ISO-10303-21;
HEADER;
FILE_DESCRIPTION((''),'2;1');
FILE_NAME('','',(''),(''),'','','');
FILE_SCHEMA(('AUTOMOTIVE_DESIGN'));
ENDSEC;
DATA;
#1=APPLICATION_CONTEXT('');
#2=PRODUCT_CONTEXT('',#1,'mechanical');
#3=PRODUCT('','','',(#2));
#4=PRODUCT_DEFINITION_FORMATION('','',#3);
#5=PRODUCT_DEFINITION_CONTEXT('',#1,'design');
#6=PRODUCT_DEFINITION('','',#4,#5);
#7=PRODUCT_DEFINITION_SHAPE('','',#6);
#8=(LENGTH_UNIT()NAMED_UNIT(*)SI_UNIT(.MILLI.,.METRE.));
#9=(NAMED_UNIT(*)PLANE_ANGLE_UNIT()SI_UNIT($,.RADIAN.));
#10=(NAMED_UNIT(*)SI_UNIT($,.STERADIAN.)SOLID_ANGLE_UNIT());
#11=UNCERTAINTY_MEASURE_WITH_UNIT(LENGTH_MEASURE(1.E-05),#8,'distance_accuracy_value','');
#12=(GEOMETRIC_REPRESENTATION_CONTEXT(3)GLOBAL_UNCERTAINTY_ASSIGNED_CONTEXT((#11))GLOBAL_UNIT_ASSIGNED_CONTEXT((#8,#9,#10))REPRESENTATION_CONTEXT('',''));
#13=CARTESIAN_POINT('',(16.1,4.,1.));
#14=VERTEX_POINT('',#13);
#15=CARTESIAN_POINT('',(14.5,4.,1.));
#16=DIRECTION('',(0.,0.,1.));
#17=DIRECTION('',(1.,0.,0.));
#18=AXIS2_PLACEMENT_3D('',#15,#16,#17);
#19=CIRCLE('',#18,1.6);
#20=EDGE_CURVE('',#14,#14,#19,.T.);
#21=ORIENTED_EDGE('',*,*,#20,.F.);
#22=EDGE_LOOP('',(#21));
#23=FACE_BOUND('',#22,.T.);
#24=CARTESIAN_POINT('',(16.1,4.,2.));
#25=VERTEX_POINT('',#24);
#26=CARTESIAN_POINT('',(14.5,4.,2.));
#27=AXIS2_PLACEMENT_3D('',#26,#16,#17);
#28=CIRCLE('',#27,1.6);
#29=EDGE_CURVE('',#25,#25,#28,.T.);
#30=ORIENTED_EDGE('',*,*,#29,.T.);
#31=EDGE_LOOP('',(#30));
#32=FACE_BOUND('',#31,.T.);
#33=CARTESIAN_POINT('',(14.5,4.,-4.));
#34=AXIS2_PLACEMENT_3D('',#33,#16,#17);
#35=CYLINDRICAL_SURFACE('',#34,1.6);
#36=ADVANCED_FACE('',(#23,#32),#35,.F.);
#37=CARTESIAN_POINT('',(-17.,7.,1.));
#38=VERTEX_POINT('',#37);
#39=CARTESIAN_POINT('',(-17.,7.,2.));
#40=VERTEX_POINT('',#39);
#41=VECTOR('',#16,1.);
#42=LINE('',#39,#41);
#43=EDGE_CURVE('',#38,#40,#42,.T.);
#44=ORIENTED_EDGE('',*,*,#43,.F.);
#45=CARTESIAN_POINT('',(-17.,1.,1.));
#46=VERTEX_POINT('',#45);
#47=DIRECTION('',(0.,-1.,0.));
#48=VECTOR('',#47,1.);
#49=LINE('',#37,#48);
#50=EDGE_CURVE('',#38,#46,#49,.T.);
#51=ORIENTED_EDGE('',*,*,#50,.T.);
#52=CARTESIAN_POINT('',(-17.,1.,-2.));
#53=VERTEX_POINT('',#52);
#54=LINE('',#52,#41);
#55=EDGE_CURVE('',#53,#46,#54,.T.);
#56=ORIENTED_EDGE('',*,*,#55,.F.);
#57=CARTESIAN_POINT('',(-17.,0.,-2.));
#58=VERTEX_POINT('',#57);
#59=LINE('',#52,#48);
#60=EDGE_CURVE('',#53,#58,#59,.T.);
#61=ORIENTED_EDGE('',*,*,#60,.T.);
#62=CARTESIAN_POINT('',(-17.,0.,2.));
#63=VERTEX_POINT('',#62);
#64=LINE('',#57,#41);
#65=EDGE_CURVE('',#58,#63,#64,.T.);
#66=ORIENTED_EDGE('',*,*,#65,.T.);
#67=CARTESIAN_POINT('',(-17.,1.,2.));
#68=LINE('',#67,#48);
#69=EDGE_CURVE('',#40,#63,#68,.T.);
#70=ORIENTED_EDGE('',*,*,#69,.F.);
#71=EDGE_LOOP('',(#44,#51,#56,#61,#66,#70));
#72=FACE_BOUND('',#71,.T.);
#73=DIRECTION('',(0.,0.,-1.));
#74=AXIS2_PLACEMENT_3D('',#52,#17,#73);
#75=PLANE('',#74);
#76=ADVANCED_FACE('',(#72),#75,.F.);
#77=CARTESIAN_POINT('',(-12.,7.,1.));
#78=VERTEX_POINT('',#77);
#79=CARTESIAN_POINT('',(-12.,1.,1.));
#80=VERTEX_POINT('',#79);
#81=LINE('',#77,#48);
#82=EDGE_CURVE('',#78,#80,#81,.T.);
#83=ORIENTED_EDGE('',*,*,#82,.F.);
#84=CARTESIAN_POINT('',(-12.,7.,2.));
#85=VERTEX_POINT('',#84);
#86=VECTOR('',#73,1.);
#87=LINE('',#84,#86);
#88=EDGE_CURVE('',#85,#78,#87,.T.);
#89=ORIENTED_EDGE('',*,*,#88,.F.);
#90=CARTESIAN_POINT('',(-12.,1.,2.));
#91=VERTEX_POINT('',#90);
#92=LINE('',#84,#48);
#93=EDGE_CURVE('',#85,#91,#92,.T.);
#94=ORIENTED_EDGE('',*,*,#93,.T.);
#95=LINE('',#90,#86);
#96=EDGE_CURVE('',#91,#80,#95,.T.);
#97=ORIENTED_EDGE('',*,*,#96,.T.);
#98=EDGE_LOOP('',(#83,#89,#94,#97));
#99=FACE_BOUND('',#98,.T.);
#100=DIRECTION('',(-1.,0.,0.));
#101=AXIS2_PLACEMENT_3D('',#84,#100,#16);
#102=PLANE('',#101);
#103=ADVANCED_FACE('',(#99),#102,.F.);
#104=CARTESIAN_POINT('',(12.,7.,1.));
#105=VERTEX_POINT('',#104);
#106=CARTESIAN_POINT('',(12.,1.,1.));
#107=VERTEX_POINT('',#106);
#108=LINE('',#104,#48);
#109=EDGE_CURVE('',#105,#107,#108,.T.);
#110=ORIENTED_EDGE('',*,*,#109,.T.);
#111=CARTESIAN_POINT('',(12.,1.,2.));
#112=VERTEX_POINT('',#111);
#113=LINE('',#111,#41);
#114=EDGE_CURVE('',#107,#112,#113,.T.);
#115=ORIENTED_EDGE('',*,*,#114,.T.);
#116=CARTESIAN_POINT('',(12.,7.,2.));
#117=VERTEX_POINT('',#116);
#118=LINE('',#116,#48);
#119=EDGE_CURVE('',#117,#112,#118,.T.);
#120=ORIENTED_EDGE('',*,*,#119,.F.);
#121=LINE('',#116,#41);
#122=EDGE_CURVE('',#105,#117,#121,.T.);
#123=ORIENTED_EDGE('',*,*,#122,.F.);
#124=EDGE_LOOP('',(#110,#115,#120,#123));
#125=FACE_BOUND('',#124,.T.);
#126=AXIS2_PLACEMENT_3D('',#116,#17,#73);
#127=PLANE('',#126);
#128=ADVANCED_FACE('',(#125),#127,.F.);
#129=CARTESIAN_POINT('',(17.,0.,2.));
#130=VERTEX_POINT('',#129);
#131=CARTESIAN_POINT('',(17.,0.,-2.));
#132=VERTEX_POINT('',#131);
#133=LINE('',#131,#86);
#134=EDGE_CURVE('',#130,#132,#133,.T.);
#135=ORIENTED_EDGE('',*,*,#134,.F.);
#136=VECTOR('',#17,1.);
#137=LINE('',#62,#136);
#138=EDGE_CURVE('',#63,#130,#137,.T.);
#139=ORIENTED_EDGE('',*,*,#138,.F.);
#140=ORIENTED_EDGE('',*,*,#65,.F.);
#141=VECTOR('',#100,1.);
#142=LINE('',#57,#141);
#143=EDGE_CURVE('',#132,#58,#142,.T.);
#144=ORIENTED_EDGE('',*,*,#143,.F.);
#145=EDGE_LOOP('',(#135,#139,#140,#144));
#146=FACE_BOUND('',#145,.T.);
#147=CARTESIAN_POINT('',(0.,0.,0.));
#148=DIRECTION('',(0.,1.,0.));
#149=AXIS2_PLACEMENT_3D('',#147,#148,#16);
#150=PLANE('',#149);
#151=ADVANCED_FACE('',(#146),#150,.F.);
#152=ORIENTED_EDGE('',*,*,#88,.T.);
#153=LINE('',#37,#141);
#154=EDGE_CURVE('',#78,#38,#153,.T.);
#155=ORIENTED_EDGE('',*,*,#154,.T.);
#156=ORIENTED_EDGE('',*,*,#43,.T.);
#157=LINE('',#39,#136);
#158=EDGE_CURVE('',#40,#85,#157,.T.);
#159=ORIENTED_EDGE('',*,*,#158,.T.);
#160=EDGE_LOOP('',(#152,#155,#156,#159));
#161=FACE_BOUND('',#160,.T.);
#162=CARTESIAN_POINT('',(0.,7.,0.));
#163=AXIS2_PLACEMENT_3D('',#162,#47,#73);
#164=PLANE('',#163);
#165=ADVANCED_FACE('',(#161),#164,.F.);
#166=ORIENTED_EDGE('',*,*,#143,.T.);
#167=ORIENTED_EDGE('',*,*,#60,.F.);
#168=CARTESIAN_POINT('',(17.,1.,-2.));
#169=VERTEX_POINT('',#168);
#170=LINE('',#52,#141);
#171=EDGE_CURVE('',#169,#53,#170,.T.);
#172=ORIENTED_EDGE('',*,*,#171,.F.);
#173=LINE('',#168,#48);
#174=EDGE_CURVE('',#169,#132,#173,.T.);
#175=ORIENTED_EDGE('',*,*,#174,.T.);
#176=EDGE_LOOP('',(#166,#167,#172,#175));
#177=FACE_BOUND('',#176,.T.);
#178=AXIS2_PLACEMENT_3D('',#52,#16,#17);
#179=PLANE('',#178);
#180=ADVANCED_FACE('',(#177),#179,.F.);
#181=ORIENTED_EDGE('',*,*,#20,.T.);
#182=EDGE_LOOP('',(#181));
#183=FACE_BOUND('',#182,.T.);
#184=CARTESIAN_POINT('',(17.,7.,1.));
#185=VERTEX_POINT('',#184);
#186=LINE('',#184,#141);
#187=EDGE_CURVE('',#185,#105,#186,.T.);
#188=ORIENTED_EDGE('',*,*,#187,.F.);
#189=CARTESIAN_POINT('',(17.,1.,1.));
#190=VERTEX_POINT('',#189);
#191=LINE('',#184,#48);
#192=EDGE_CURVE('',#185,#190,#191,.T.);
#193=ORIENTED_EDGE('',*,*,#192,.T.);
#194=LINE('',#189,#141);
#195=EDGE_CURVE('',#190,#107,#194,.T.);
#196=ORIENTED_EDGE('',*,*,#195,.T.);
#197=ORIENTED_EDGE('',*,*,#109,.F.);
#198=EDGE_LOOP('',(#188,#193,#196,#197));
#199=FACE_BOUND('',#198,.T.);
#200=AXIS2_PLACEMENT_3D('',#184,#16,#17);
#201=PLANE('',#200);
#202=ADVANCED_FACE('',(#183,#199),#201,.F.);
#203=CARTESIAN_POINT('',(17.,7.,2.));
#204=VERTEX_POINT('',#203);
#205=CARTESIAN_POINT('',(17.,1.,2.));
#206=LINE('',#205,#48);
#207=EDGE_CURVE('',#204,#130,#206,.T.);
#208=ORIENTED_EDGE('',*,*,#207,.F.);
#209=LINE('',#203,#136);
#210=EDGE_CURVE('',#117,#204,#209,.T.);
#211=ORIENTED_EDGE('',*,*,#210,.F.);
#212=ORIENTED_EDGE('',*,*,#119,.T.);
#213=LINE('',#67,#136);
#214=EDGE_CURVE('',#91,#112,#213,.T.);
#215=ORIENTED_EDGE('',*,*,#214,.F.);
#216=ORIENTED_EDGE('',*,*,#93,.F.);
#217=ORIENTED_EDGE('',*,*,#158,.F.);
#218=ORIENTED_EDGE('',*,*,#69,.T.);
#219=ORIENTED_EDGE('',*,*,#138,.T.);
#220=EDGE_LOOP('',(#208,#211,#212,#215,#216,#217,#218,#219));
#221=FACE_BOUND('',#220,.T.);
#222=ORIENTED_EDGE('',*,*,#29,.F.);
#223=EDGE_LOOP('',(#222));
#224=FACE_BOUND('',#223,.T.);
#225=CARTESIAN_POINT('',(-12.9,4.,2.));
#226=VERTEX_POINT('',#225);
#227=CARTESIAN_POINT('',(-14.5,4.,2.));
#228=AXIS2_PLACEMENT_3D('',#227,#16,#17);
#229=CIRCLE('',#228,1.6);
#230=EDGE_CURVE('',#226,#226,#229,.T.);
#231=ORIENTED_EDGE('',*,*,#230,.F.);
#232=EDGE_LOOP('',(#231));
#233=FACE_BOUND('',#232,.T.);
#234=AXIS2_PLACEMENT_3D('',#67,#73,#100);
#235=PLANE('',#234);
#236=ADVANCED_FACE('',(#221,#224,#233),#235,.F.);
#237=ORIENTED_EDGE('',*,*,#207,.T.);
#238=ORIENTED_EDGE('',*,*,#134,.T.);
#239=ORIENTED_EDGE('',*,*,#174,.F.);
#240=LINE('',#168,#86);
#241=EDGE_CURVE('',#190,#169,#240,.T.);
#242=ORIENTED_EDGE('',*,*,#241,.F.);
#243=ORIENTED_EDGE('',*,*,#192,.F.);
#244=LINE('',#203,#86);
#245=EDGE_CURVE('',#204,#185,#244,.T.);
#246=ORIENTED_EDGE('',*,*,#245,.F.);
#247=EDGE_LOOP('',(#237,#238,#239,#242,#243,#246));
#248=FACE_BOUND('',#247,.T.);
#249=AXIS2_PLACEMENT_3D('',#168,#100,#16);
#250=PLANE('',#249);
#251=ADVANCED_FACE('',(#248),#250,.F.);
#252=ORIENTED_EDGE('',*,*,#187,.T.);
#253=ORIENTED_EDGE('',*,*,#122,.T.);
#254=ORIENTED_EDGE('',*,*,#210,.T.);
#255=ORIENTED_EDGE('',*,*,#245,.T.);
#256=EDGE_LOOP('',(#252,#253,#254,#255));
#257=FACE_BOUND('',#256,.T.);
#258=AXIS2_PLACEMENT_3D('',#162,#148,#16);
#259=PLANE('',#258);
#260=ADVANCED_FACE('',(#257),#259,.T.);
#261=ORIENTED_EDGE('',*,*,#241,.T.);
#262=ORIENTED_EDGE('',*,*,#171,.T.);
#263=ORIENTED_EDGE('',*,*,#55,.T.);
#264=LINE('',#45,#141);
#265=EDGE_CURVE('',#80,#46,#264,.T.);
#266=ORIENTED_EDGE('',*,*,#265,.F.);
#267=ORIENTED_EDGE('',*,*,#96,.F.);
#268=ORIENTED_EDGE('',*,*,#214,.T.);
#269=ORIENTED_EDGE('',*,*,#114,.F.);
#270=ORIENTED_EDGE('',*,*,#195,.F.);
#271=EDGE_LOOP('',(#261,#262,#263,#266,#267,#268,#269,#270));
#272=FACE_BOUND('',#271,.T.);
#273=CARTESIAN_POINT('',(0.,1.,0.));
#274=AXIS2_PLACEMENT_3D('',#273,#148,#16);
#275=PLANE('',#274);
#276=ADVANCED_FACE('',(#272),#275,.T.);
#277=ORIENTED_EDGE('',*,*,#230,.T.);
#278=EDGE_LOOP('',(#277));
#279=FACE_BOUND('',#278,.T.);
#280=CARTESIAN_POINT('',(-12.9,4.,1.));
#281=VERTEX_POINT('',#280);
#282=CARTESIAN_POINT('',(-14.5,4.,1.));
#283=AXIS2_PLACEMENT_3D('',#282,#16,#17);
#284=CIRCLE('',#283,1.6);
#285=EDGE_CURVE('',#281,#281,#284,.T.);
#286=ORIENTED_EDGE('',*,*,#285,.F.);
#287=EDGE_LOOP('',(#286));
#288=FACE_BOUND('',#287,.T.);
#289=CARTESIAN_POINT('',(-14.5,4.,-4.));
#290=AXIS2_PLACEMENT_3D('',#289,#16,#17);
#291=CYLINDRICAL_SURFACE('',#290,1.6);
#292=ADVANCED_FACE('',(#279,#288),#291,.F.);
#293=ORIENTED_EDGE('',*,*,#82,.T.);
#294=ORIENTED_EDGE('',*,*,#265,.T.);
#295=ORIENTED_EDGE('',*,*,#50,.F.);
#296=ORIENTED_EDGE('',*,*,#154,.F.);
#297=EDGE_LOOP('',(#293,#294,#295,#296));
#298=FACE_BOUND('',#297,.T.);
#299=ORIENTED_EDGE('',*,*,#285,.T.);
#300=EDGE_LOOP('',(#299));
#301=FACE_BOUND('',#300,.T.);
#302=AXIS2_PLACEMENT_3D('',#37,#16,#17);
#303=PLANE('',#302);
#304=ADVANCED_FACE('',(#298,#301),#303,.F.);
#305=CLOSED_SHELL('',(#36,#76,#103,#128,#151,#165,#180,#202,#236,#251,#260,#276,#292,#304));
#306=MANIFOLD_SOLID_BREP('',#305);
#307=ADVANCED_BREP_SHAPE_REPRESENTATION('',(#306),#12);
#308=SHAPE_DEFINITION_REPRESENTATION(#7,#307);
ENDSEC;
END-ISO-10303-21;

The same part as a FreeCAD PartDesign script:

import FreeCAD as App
import Part
import Sketcher
from FreeCAD import Vector


def add_polygon(sketch, points):
    """Adds a closed chain of lines whose ends are joined by coincident constraints."""
    first, n = sketch.GeometryCount, len(points)
    for a, b in zip(points, points[1:] + points[:1]):
        sketch.addGeometry(Part.LineSegment(App.Vector(*a, 0), App.Vector(*b, 0)), False)
    for i in range(n):
        sketch.addConstraint(Sketcher.Constraint("Coincident", first + i, 2, first + (i + 1) % n, 1))

doc = App.newDocument("Part")
body = doc.addObject("PartDesign::Body", "Body")

# Sketch on XZ plane
sketch1 = doc.addObject("Sketcher::SketchObject", "Sketch")
body.addObject(sketch1)
sketch1.AttachmentSupport = (doc.XZ_Plane, [""])
sketch1.MapMode = "FlatFace"
add_polygon(sketch1, [(-17, -2), (-17, 2), (17, 2), (17, -2)])  # lines 0-3
sketch1.addConstraint(Sketcher.Constraint("Vertical", 0))
sketch1.addConstraint(Sketcher.Constraint("Horizontal", 1))
sketch1.addConstraint(Sketcher.Constraint("Vertical", 2))
sketch1.addConstraint(Sketcher.Constraint("Horizontal", 3))
sketch1.addConstraint(Sketcher.Constraint("Symmetric", 0, 2, 2, 2, -1, 1))
sketch1.addConstraint(Sketcher.Constraint("DistanceX", 1, 1, 1, 2, 34.0))
sketch1.addConstraint(Sketcher.Constraint("DistanceY", 0, 1, 0, 2, 4.0))
pad1 = doc.addObject("PartDesign::Pad", "Pad")
body.addObject(pad1)
pad1.Profile = sketch1
pad1.Length = 1
pad1.Reversed = True

# Sketch on XZ plane
sketch2 = doc.addObject("Sketcher::SketchObject", "Sketch001")
body.addObject(sketch2)
sketch2.AttachmentSupport = (doc.XZ_Plane, [""])
sketch2.MapMode = "FlatFace"
sketch2.AttachmentOffset = App.Placement(Vector(0, 0, -1), App.Rotation())
add_polygon(sketch2, [(-17, 1), (-17, 2), (-12, 2), (-12, 1)])  # lines 0-3
add_polygon(sketch2, [(12, 1), (12, 2), (17, 2), (17, 1)])  # lines 4-7
sketch2.addConstraint(Sketcher.Constraint("Vertical", 0))
sketch2.addConstraint(Sketcher.Constraint("Horizontal", 1))
sketch2.addConstraint(Sketcher.Constraint("Vertical", 2))
sketch2.addConstraint(Sketcher.Constraint("Horizontal", 3))
sketch2.addConstraint(Sketcher.Constraint("Vertical", 4))
sketch2.addConstraint(Sketcher.Constraint("Horizontal", 5))
sketch2.addConstraint(Sketcher.Constraint("Vertical", 6))
sketch2.addConstraint(Sketcher.Constraint("Horizontal", 7))
sketch2.addConstraint(Sketcher.Constraint("Symmetric", 1, 2, 4, 2, -2))
sketch2.addConstraint(Sketcher.Constraint("Symmetric", 3, 2, 6, 2, -2))
sketch2.addConstraint(Sketcher.Constraint("DistanceX", 1, 1, 1, 2, 5.0))
sketch2.addConstraint(Sketcher.Constraint("DistanceY", 0, 1, 0, 2, 1.0))
sketch2.addConstraint(Sketcher.Constraint("DistanceX", 0, 2, -1, 1, 17.0))
sketch2.addConstraint(Sketcher.Constraint("DistanceY", -1, 1, 0, 2, 2.0))
pad2 = doc.addObject("PartDesign::Pad", "Pad001")
body.addObject(pad2)
pad2.Profile = sketch2
pad2.Length = 6
pad2.Reversed = True

# Sketch on XY plane
sketch3 = doc.addObject("Sketcher::SketchObject", "Sketch002")
body.addObject(sketch3)
sketch3.AttachmentSupport = (doc.XY_Plane, [""])
sketch3.MapMode = "FlatFace"
sketch3.AttachmentOffset = App.Placement(Vector(0, 0, 2), App.Rotation())
sketch3.addGeometry(Part.Circle(Vector(-14.5, 4, 0), Vector(0, 0, 1), 1.6), False)
sketch3.addGeometry(Part.Circle(Vector(14.5, 4, 0), Vector(0, 0, 1), 1.6), False)
sketch3.addConstraint(Sketcher.Constraint("Equal", 0, 1))
sketch3.addConstraint(Sketcher.Constraint("Symmetric", 0, 3, 1, 3, -2))
sketch3.addConstraint(Sketcher.Constraint("Diameter", 0, 3.2))
sketch3.addConstraint(Sketcher.Constraint("DistanceY", -1, 1, 0, 3, 4.0))
sketch3.addConstraint(Sketcher.Constraint("DistanceX", 0, 3, 1, 3, 29.0))
pocket1 = doc.addObject("PartDesign::Pocket", "Pocket")
body.addObject(pocket1)
pocket1.Profile = sketch3
pocket1.Length = 6

doc.recompute()
